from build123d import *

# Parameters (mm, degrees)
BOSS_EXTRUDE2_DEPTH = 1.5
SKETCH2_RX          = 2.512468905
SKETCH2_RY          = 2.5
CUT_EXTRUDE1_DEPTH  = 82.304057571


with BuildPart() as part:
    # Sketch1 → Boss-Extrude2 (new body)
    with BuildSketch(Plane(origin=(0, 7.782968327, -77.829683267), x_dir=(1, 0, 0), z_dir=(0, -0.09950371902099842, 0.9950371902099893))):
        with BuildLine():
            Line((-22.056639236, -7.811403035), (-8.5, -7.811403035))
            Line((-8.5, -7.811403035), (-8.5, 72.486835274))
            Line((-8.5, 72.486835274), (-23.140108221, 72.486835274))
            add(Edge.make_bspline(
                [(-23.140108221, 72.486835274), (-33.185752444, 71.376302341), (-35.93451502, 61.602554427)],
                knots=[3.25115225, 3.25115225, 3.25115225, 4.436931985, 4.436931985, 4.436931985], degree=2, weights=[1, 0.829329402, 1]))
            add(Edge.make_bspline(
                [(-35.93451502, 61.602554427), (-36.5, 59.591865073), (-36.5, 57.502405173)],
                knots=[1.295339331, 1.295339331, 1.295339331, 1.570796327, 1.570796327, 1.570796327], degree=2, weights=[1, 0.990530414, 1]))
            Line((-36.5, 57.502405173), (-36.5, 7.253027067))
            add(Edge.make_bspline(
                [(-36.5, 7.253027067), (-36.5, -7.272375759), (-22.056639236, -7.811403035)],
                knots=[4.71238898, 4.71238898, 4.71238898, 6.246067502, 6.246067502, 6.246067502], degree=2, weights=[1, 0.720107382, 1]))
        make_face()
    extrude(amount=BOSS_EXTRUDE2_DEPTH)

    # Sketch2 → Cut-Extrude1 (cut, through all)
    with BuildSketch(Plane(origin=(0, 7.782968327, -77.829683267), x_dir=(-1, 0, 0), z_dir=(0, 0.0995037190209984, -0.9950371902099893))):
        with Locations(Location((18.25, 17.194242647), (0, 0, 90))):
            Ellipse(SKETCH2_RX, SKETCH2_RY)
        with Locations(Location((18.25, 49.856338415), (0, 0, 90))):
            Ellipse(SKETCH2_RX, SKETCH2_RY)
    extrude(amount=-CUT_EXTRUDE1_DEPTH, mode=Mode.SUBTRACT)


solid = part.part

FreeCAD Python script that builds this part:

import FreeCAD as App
import Part
import Sketcher

doc = App.newDocument("Part")
body = doc.addObject("PartDesign::Body", "Body")

# Sketch on an angled plane
sketch1 = body.newObject("Sketcher::SketchObject", "Sketch")
sketch1.Placement = App.Placement(App.Vector(0, 7.782968, -77.829683), App.Rotation(App.Vector(1, 0, 0), App.Vector(0, 0.99503719, 0.099503719), App.Vector(0, -0.099503719, 0.99503719), "ZXY"))
sketch1.addGeometry(Part.LineSegment(App.Vector(-22.056639, -7.811403, 0), App.Vector(-8.5, -7.811403, 0)), False)
sketch1.addGeometry(Part.LineSegment(App.Vector(-8.5, -7.811403, 0), App.Vector(-8.5, 72.486835, 0)), False)
sketch1.addGeometry(Part.LineSegment(App.Vector(-8.5, 72.486835, 0), App.Vector(-23.140108, 72.486835, 0)), False)
sketch1.addGeometry(Part.BSplineCurve([App.Vector(-23.140108, 72.486835, 0), App.Vector(-33.185752, 71.376302, 0), App.Vector(-35.934515, 61.602554, 0)], [3, 3], [3.25115225, 4.436931985], False, 2, [1, 0.829329402, 1], False), False)
sketch1.addGeometry(Part.BSplineCurve([App.Vector(-35.934515, 61.602554, 0), App.Vector(-36.5, 59.591865, 0), App.Vector(-36.5, 57.502405, 0)], [3, 3], [1.295339331, 1.570796327], False, 2, [1, 0.990530414, 1], False), False)
sketch1.addGeometry(Part.LineSegment(App.Vector(-36.5, 57.502405, 0), App.Vector(-36.5, 7.253027, 0)), False)
sketch1.addGeometry(Part.BSplineCurve([App.Vector(-36.5, 7.253027, 0), App.Vector(-36.5, -7.272376, 0), App.Vector(-22.056639, -7.811403, 0)], [3, 3], [4.71238898, 6.246067502], False, 2, [1, 0.720107382, 1], False), False)
sketch1.addConstraint(Sketcher.Constraint("Block", 3))
sketch1.addConstraint(Sketcher.Constraint("Block", 4))
sketch1.addConstraint(Sketcher.Constraint("Block", 6))
sketch1.addConstraint(Sketcher.Constraint("Coincident", 0, 2, 1, 1))
sketch1.addConstraint(Sketcher.Constraint("Coincident", 1, 2, 2, 1))
sketch1.addConstraint(Sketcher.Constraint("Coincident", 2, 2, 3, 1))
sketch1.addConstraint(Sketcher.Constraint("Coincident", 4, 2, 5, 1))
sketch1.addConstraint(Sketcher.Constraint("Coincident", 5, 2, 6, 1))
sketch1.addConstraint(Sketcher.Constraint("Coincident", 6, 2, 0, 1))
sketch1.addConstraint(Sketcher.Constraint("Horizontal", 0))
sketch1.addConstraint(Sketcher.Constraint("Vertical", 1))
sketch1.addConstraint(Sketcher.Constraint("Horizontal", 2))
sketch1.addConstraint(Sketcher.Constraint("DistanceX", 5, 2, 0, 2, 28.0))
pad1 = body.newObject("PartDesign::Pad", "Pad")
pad1.Profile = sketch1
pad1.Length = 1.5

# Sketch on an angled plane
sketch2 = body.newObject("Sketcher::SketchObject", "Sketch001")
sketch2.Placement = App.Placement(App.Vector(0, 7.782968, -77.829683), App.Rotation(App.Vector(-1, 0, 0), App.Vector(0, 0.99503719, 0.099503719), App.Vector(0, 0.099503719, -0.99503719), "ZXY"))
sketch2.addGeometry(Part.Ellipse(App.Vector(18.25, 19.706712, 0), App.Vector(15.75, 17.194243, 0), App.Vector(18.25, 17.194243, 0)), False)
sketch2.addGeometry(Part.Ellipse(App.Vector(18.25, 52.368807, 0), App.Vector(15.75, 49.856338, 0), App.Vector(18.25, 49.856338, 0)), False)
sketch2.addConstraint(Sketcher.Constraint("Block", 0))
sketch2.addConstraint(Sketcher.Constraint("Block", 1))
pocket1 = body.newObject("PartDesign::Pocket", "Pocket")
pocket1.Profile = sketch2
pocket1.Type = "ThroughAll"

doc.recompute()
